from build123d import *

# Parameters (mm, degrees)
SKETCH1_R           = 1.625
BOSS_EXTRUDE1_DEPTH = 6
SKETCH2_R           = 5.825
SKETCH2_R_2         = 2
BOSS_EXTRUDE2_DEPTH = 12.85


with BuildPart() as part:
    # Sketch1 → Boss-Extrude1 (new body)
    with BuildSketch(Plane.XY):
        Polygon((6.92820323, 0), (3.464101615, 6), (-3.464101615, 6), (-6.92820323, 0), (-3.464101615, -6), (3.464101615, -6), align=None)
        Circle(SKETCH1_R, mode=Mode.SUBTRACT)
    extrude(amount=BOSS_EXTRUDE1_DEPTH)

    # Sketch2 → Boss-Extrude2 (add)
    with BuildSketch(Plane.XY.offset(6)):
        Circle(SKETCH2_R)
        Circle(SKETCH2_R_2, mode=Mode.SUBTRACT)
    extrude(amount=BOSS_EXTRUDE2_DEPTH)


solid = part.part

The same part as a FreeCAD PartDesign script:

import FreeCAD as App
import Part
import Sketcher
Q = App.Units.Quantity

doc = App.newDocument("Part")
body = doc.addObject("PartDesign::Body", "Body")

sketch1 = body.newObject("Sketcher::SketchObject", "Sketch")
sketch1.AttachmentSupport = (doc.getObject("XY_Plane"), [""])
sketch1.MapMode = "FlatFace"
sketch1.addGeometry([
    Part.LineSegment(App.Vector(6.9, 0, 0), App.Vector(3.5, 6, 0)),
    Part.LineSegment(App.Vector(3.5, 6, 0), App.Vector(-3.5, 6, 0)),
    Part.LineSegment(App.Vector(-3.5, 6, 0), App.Vector(-6.9, 0, 0)),
    Part.LineSegment(App.Vector(-6.9, 0, 0), App.Vector(-3.5, -6, 0)),
    Part.LineSegment(App.Vector(-3.5, -6, 0), App.Vector(3.5, -6, 0)),
    Part.LineSegment(App.Vector(3.5, -6, 0), App.Vector(6.9, 0, 0)),
    Part.Circle(App.Vector(0, 0, 0), App.Vector(0, 0, 1), 1.6),
], False)
sketch1.addConstraint([
    Sketcher.Constraint("Coincident", 0, 2, 1, 1),
    Sketcher.Constraint("Coincident", 1, 2, 2, 1),
    Sketcher.Constraint("Coincident", 2, 2, 3, 1),
    Sketcher.Constraint("Coincident", 3, 2, 4, 1),
    Sketcher.Constraint("Coincident", 4, 2, 5, 1),
    Sketcher.Constraint("Coincident", 5, 2, 0, 1),
    Sketcher.Constraint("Horizontal", 1),
    Sketcher.Constraint("Horizontal", 4),
    Sketcher.Constraint("Coincident", 6, 3, -1, 1),
    Sketcher.Constraint("Symmetric", 0, 2, 3, 2, -1, 1),
    Sketcher.Constraint("Symmetric", 2, 2, 5, 2, -1, 1),
    Sketcher.Constraint("PointOnObject", 2, 2, -1),
    Sketcher.Constraint("Parallel", 2, 5),
    Sketcher.Constraint("Vertical", 1, 2, 3, 2),
    Sketcher.Constraint("Diameter", 6, 3.25),
    Sketcher.Constraint("Angle", 0, Q("120 deg")),
    Sketcher.Constraint("DistanceY", -1, 1, 0, 2, 6.0),
    Sketcher.Constraint("DistanceX", -1, 1, 0, 2, 3.464102),
])
pad1 = body.newObject("PartDesign::Pad", "Pad")
pad1.Profile = sketch1
pad1.Length = 6

sketch2 = body.newObject("Sketcher::SketchObject", "Sketch001")
sketch2.AttachmentSupport = (doc.getObject("XY_Plane"), [""])
sketch2.MapMode = "FlatFace"
sketch2.AttachmentOffset = App.Placement(App.Vector(0, 0, 6), App.Rotation())
sketch2.addGeometry([
    Part.Circle(App.Vector(0, 0, 0), App.Vector(0, 0, 1), 5.8),
    Part.Circle(App.Vector(0, 0, 0), App.Vector(0, 0, 1), 2),
], False)
sketch2.addConstraint([
    Sketcher.Constraint("Coincident", 0, 3, -1, 1),
    Sketcher.Constraint("Coincident", 1, 3, -1, 1),
    Sketcher.Constraint("Diameter", 1, 4.0),
    Sketcher.Constraint("Diameter", 0, 11.65),
])
pad2 = body.newObject("PartDesign::Pad", "Pad001")
pad2.Profile = sketch2
pad2.Length = 12.85

doc.recompute()
